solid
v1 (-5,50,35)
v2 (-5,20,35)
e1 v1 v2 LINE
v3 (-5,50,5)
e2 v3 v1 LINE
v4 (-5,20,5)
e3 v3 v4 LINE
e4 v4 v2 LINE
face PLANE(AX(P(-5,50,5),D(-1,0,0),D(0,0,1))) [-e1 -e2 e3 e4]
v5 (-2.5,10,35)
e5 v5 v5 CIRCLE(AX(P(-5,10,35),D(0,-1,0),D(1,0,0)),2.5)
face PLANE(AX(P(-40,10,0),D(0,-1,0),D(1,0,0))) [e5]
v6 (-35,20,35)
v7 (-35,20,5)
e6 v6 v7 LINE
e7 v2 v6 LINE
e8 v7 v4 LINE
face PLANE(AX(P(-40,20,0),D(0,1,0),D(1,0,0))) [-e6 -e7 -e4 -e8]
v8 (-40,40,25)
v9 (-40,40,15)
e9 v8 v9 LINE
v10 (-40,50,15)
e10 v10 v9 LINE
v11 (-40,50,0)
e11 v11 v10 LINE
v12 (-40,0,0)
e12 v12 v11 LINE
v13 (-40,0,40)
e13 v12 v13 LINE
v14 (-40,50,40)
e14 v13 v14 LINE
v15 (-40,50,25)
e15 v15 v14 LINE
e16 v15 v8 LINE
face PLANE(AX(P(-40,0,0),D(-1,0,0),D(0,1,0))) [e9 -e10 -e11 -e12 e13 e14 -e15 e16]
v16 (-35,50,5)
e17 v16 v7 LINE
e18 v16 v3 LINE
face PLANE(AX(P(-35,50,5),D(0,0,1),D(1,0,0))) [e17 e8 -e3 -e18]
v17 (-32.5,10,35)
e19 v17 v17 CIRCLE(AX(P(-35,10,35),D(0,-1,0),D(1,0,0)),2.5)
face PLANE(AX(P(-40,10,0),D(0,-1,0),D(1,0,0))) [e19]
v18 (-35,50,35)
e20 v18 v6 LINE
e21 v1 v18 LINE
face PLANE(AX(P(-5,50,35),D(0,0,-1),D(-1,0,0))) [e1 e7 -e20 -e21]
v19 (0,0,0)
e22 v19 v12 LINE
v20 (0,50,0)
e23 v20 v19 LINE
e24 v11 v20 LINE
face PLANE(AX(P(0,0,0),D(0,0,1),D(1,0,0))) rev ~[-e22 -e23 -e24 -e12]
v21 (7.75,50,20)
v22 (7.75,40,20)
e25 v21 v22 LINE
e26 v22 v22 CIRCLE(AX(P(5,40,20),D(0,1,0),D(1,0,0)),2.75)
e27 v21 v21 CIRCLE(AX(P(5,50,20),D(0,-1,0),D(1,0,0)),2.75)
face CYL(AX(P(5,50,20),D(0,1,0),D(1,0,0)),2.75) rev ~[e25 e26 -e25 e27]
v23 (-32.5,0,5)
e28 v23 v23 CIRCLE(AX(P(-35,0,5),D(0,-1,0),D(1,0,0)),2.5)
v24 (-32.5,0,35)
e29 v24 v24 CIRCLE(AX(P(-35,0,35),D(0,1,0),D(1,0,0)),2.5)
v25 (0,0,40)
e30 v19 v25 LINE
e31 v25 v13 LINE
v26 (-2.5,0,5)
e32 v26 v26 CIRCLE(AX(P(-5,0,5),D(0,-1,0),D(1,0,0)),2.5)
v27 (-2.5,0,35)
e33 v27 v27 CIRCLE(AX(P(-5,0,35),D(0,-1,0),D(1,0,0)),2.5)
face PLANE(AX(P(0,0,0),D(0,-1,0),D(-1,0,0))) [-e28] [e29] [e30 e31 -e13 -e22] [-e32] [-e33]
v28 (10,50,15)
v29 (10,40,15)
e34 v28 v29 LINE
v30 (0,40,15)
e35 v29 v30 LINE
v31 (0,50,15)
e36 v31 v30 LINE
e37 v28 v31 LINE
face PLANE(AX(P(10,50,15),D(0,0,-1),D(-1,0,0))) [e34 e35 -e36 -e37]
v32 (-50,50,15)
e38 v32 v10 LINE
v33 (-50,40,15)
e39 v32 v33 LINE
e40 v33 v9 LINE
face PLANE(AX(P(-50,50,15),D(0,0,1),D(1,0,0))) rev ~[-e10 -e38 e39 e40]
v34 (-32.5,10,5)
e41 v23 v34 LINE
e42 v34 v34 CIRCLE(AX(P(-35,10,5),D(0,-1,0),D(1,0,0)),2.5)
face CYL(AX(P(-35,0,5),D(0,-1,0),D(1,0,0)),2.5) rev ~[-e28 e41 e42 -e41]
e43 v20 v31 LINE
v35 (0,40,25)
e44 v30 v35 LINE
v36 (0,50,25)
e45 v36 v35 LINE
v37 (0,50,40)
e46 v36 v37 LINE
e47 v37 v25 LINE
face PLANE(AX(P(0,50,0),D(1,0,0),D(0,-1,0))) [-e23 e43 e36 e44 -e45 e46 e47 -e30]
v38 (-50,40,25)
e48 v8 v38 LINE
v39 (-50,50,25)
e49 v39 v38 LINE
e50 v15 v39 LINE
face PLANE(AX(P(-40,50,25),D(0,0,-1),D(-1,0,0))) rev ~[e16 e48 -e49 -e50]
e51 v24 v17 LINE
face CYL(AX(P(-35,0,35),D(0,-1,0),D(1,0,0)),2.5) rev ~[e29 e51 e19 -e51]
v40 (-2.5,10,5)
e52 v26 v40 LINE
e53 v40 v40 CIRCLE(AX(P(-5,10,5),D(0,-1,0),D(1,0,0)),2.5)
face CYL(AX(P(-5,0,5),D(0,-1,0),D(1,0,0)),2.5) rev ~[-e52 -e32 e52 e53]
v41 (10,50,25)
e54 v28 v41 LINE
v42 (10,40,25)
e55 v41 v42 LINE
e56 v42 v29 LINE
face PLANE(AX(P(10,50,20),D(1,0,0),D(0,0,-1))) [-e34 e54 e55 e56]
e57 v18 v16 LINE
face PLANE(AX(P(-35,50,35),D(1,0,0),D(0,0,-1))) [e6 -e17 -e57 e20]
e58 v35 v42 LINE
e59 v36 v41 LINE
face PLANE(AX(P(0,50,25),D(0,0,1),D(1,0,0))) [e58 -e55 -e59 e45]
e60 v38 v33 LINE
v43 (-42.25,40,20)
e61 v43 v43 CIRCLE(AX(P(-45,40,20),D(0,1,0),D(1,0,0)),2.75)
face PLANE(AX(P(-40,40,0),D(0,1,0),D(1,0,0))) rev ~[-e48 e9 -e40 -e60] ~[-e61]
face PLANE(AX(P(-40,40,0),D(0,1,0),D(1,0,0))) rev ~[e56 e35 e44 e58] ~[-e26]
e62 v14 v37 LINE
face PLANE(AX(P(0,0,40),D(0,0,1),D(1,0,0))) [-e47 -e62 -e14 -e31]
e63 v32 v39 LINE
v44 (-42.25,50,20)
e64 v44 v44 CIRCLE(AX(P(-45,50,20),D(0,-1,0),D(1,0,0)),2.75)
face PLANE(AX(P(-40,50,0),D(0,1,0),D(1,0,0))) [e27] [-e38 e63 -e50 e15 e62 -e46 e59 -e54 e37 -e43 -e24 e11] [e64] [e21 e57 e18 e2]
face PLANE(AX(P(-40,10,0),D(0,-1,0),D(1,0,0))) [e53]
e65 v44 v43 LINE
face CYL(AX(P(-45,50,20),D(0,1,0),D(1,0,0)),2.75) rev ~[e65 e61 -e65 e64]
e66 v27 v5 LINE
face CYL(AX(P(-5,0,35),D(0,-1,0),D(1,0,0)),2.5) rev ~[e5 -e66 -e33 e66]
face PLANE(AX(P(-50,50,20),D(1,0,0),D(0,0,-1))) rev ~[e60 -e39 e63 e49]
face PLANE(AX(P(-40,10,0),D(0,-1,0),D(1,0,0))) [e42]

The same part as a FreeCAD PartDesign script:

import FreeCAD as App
import Part
import Sketcher
from FreeCAD import Vector
Q = App.Units.Quantity

doc = App.newDocument("Part")
body = doc.addObject("PartDesign::Body", "Body")

# Sketch on XY plane
sketch1 = doc.addObject("Sketcher::SketchObject", "Sketch")
body.addObject(sketch1)
sketch1.AttachmentSupport = (doc.XY_Plane, [""])
sketch1.MapMode = "FlatFace"
sketch1.addGeometry([
    Part.LineSegment(Vector(-40, 0, 0), Vector(0, 0, 0)),
    Part.LineSegment(Vector(0, 0, 0), Vector(0, 50, 0)),
    Part.LineSegment(Vector(0, 50, 0), Vector(-40, 50, 0)),
    Part.LineSegment(Vector(-40, 50, 0), Vector(-40, 0, 0)),
], False)
sketch1.addConstraint([
    Sketcher.Constraint("Coincident", 0, 2, 1, 1),
    Sketcher.Constraint("Coincident", 1, 2, 2, 1),
    Sketcher.Constraint("Coincident", 2, 2, 3, 1),
    Sketcher.Constraint("Coincident", 3, 2, 0, 1),
    Sketcher.Constraint("Horizontal", 0),
    Sketcher.Constraint("Vertical", 1),
    Sketcher.Constraint("Horizontal", 2),
    Sketcher.Constraint("Vertical", 3),
    Sketcher.Constraint("Coincident", 0, 2, -1, 1),
    Sketcher.Constraint("DistanceX", 0, 1, 0, 2, Q("40 mm")),
    Sketcher.Constraint("DistanceY", 1, 1, 1, 2, Q("50 mm")),
])
pad1 = doc.addObject("PartDesign::Pad", "Pad")
body.addObject(pad1)
pad1.Profile = sketch1
pad1.Length = 40

# Sketch on XZ plane
sketch2 = doc.addObject("Sketcher::SketchObject", "Sketch001")
body.addObject(sketch2)
sketch2.AttachmentSupport = (doc.XZ_Plane, [""])
sketch2.MapMode = "FlatFace"
sketch2.AttachmentOffset = App.Placement(Vector(0, 0, -50), App.Rotation())
sketch2.addGeometry([
    Part.LineSegment(Vector(-5, 5, 0), Vector(-35, 5, 0)),
    Part.LineSegment(Vector(-35, 5, 0), Vector(-35, 35, 0)),
    Part.LineSegment(Vector(-35, 35, 0), Vector(-5, 35, 0)),
    Part.LineSegment(Vector(-5, 35, 0), Vector(-5, 5, 0)),
], False)
sketch2.addConstraint([
    Sketcher.Constraint("Coincident", 0, 2, 1, 1),
    Sketcher.Constraint("Coincident", 1, 2, 2, 1),
    Sketcher.Constraint("Coincident", 2, 2, 3, 1),
    Sketcher.Constraint("Coincident", 3, 2, 0, 1),
    Sketcher.Constraint("Horizontal", 0),
    Sketcher.Constraint("Vertical", 1),
    Sketcher.Constraint("Horizontal", 2),
    Sketcher.Constraint("Vertical", 3),
    Sketcher.Constraint("Equal", 2, 1),
    Sketcher.Constraint("DistanceY", -1, 1, 0, 2, Q("5 mm")),
    Sketcher.Constraint("DistanceX", 2, 2, -1, 1, Q("5 mm")),
    Sketcher.Constraint("DistanceX", 0, 2, 0, 1, Q("30 mm")),
])
pocket1 = doc.addObject("PartDesign::Pocket", "Pocket")
body.addObject(pocket1)
pocket1.Profile = sketch2
pocket1.Length = 30
pocket1.Reversed = True

# Sketch on XZ plane
sketch3 = doc.addObject("Sketcher::SketchObject", "Sketch002")
body.addObject(sketch3)
sketch3.AttachmentSupport = (doc.XZ_Plane, [""])
sketch3.MapMode = "FlatFace"
sketch3.addGeometry([
    Part.Circle(Vector(-35, 35, 0), Vector(0, 0, 1), 2.5),
    Part.Circle(Vector(-5, 35, 0), Vector(0, 0, 1), 2.5),
    Part.Circle(Vector(-35, 5, 0), Vector(0, 0, 1), 2.5),
    Part.Circle(Vector(-5, 5, 0), Vector(0, 0, 1), 2.5),
], False)
sketch3.addConstraint([
    Sketcher.Constraint("Equal", 0, 1),
    Sketcher.Constraint("Equal", 1, 2),
    Sketcher.Constraint("Equal", 2, 3),
    Sketcher.Constraint("Horizontal", 0, 3, 1, 3),
    Sketcher.Constraint("Horizontal", 2, 3, 3, 3),
    Sketcher.Constraint("Vertical", 0, 3, 2, 3),
    Sketcher.Constraint("Vertical", 1, 3, 3, 3),
    Sketcher.Constraint("Diameter", 0, Q("5 mm")),
    Sketcher.Constraint("DistanceX", 1, 3, -1, 1, Q("5 mm")),
    Sketcher.Constraint("DistanceY", -1, 1, 2, 3, Q("5 mm")),
    Sketcher.Constraint("DistanceX", 0, 3, 1, 3, Q("30 mm")),
    Sketcher.Constraint("DistanceY", 2, 3, 0, 3, Q("30 mm")),
])
pocket2 = doc.addObject("PartDesign::Pocket", "Pocket001")
body.addObject(pocket2)
pocket2.Profile = sketch3
pocket2.Length = 10

# Sketch on XZ plane
sketch4 = doc.addObject("Sketcher::SketchObject", "Sketch003")
body.addObject(sketch4)
sketch4.AttachmentSupport = (doc.XZ_Plane, [""])
sketch4.MapMode = "FlatFace"
sketch4.AttachmentOffset = App.Placement(Vector(0, 0, -50), App.Rotation())
sketch4.addGeometry([
    Part.LineSegment(Vector(-40, 15, 0), Vector(-50, 15, 0)),  # 0
    Part.LineSegment(Vector(-50, 15, 0), Vector(-50, 25, 0)),  # 1
    Part.LineSegment(Vector(-50, 25, 0), Vector(-40, 25, 0)),  # 2
    Part.LineSegment(Vector(-40, 25, 0), Vector(-40, 15, 0)),  # 3
    Part.Circle(Vector(-45, 20, 0), Vector(0, 0, 1), 2.8),  # 4
    Part.LineSegment(Vector(10, 15, 0), Vector(0, 15, 0)),  # 5
    Part.LineSegment(Vector(0, 15, 0), Vector(0, 25, 0)),  # 6
    Part.LineSegment(Vector(0, 25, 0), Vector(10, 25, 0)),  # 7
    Part.LineSegment(Vector(10, 25, 0), Vector(10, 15, 0)),  # 8
    Part.Circle(Vector(5, 20, 0), Vector(0, 0, 1), 2.8),  # 9
], False)
sketch4.addConstraint([
    Sketcher.Constraint("Coincident", 0, 2, 1, 1),
    Sketcher.Constraint("Coincident", 1, 2, 2, 1),
    Sketcher.Constraint("Coincident", 2, 2, 3, 1),
    Sketcher.Constraint("Coincident", 3, 2, 0, 1),
    Sketcher.Constraint("Coincident", 5, 2, 6, 1),
    Sketcher.Constraint("Coincident", 6, 2, 7, 1),
    Sketcher.Constraint("Coincident", 7, 2, 8, 1),
    Sketcher.Constraint("Coincident", 8, 2, 5, 1),
    Sketcher.Constraint("Horizontal", 0),
    Sketcher.Constraint("Vertical", 1),
    Sketcher.Constraint("Horizontal", 2),
    Sketcher.Constraint("Vertical", 3),
    Sketcher.Constraint("Horizontal", 5),
    Sketcher.Constraint("Vertical", 6),
    Sketcher.Constraint("Horizontal", 7),
    Sketcher.Constraint("Vertical", 8),
    Sketcher.Constraint("Equal", 4, 9),
    Sketcher.Constraint("PointOnObject", 5, 2, -2),
    Sketcher.Constraint("Horizontal", 4, 3, 9, 3),
    Sketcher.Constraint("Horizontal", 3, 2, 5, 2),
    Sketcher.Constraint("Horizontal", 2, 2, 6, 2),
    Sketcher.Constraint("Equal", 2, 5),
    Sketcher.Constraint("Equal", 7, 1),
    Sketcher.Constraint("Diameter", 4, Q("5.5 mm")),
    Sketcher.Constraint("DistanceX", 0, 2, 0, 1, Q("10 mm")),
    Sketcher.Constraint("DistanceX", 4, 3, -1, 1, Q("45 mm")),
    Sketcher.Constraint("DistanceY", -1, 1, 4, 3, Q("20 mm")),
    Sketcher.Constraint("DistanceX", -1, 1, 9, 3, Q("5 mm")),
    Sketcher.Constraint("DistanceX", 0, 2, -1, 1, Q("50 mm")),
    Sketcher.Constraint("DistanceY", -1, 1, 0, 2, Q("15 mm")),
])
pad2 = doc.addObject("PartDesign::Pad", "Pad001")
body.addObject(pad2)
pad2.Profile = sketch4
pad2.Length = 10

doc.recompute()
